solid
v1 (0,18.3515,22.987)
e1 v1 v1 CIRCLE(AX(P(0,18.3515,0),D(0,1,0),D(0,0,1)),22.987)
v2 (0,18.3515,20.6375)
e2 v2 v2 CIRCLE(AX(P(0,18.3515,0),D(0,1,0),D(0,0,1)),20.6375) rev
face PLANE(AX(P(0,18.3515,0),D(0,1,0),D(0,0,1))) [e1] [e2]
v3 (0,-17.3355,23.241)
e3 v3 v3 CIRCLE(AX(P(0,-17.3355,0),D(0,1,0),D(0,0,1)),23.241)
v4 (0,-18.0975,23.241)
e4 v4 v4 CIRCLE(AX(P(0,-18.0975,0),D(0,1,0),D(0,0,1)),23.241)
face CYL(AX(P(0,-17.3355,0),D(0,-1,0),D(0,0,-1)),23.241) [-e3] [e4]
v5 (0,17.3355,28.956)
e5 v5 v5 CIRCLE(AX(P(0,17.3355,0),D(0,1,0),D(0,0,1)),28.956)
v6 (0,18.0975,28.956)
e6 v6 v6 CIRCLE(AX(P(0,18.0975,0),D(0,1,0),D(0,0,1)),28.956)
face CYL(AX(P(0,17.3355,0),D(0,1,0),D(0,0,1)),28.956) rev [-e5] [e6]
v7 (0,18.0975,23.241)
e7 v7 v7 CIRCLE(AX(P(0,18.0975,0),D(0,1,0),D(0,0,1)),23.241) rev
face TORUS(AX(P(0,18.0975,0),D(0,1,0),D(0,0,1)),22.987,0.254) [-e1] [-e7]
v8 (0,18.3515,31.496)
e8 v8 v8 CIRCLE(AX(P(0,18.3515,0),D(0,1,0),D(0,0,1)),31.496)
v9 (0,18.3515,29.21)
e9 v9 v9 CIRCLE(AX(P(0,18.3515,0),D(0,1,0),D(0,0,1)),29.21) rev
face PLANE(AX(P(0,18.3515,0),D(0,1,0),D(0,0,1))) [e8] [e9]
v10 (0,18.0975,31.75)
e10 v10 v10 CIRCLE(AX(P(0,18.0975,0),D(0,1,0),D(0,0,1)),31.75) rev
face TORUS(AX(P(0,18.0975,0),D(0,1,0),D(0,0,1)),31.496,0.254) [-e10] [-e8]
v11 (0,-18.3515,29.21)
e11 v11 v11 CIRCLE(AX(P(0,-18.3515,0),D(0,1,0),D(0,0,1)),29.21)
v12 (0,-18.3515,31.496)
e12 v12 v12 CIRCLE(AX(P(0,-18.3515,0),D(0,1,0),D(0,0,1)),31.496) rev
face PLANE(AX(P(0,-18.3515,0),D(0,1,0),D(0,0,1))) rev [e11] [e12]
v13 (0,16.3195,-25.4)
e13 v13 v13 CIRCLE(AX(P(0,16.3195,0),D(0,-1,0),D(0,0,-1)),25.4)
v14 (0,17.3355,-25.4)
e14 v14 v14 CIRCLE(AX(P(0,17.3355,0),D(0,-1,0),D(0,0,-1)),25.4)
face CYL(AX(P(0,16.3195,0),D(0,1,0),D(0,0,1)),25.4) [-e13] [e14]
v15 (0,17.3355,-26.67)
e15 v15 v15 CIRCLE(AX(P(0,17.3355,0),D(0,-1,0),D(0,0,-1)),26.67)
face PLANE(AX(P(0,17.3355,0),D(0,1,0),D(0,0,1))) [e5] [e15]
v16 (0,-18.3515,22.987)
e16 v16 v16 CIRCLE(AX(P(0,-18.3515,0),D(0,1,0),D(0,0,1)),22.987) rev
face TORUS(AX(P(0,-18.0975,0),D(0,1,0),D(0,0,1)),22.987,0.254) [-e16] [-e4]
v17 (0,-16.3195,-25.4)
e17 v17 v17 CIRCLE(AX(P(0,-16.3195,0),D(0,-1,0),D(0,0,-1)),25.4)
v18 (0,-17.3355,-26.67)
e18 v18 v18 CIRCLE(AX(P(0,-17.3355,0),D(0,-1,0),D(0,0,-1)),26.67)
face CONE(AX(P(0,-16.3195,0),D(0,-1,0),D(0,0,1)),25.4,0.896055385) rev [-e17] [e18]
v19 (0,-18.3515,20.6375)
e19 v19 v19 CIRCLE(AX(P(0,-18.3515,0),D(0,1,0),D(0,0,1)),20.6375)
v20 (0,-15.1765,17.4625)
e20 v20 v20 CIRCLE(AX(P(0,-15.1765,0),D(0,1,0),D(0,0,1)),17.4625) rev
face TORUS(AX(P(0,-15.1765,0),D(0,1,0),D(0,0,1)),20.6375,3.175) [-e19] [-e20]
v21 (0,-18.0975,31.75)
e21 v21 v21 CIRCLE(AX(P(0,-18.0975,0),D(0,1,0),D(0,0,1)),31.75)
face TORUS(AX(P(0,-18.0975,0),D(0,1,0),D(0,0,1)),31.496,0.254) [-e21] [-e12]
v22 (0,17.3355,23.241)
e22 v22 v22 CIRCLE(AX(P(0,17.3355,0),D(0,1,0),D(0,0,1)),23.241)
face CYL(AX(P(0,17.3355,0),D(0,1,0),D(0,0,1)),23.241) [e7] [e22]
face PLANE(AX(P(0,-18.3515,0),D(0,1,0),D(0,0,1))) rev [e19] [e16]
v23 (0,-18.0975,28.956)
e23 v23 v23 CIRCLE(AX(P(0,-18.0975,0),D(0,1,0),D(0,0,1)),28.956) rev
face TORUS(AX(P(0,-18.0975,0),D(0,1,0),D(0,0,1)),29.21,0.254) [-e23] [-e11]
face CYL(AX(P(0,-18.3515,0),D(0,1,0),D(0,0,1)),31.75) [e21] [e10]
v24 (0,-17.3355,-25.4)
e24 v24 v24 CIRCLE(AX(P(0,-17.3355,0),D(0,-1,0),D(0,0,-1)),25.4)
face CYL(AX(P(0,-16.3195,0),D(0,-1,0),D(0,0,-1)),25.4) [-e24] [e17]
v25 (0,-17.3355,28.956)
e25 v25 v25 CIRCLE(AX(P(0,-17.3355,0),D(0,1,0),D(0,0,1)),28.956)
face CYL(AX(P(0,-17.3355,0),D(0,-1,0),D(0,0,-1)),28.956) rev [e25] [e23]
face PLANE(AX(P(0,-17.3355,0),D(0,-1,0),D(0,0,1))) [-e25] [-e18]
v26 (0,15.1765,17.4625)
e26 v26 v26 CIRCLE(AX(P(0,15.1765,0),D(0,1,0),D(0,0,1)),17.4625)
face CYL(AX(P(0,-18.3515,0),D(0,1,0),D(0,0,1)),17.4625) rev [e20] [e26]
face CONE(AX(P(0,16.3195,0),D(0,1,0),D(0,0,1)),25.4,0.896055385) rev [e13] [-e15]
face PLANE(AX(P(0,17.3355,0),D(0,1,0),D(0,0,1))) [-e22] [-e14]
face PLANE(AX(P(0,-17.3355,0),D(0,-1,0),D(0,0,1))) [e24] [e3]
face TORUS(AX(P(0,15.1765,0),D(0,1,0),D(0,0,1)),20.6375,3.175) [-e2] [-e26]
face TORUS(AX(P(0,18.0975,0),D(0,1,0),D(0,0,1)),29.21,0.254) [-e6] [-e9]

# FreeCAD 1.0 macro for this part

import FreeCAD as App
import Part
import Sketcher
from FreeCAD import Vector
Q = App.Units.Quantity


def edges_at(feature, points):
    """Names of the edges that pass closest to the given points."""
    edges = feature.Shape.Edges
    near = lambda p: min(range(len(edges)), key=lambda i: edges[i].distToShape(Part.Vertex(*p))[0])
    return sorted({f"Edge{near(p) + 1}" for p in points})

doc = App.newDocument("Part")
body = doc.addObject("PartDesign::Body", "Body")

sketch1 = body.newObject("Sketcher::SketchObject", "Sketch")
sketch1.AttachmentSupport = (doc.getObject("XZ_Plane"), [""])
sketch1.MapMode = "FlatFace"
sketch1.addGeometry(Part.Circle(Vector(0, 0, 0), Vector(0, 0, 1), 32), False)
sketch1.addGeometry(Part.Circle(Vector(0, 0, 0), Vector(0, 0, 1), 17), False)
sketch1.addConstraint(Sketcher.Constraint("Coincident", 0, 3, -1, 1))
sketch1.addConstraint(Sketcher.Constraint("Coincident", 1, 3, -1, 1))
sketch1.addConstraint(Sketcher.Constraint("Diameter", 0, Q("2.5 in")))
sketch1.addConstraint(Sketcher.Constraint("Diameter", 1, Q("1.375 in")))
pad1 = body.newObject("PartDesign::Pad", "Pad")
pad1.Profile = sketch1
pad1.Type = "TwoLengths"
pad1.Length = Q("0.7225 in")
pad1.Length2 = Q("0.7225 in")
pad1.Reversed = True

sketch2 = body.newObject("Sketcher::SketchObject", "Sketch001")
sketch2.AttachmentSupport = (doc.getObject("XZ_Plane"), [""])
sketch2.MapMode = "FlatFace"
sketch2.AttachmentOffset = App.Placement(Vector(0, 0, -0.7225 * 25.4), App.Rotation())
sketch2.addGeometry(Part.Circle(Vector(0, 0, 0), Vector(0, 0, 1), 29), False)
sketch2.addGeometry(Part.Circle(Vector(0, 0, 0), Vector(0, 0, 1), 23), False)
sketch2.addConstraint(Sketcher.Constraint("Coincident", 0, 3, -1, 1))
sketch2.addConstraint(Sketcher.Constraint("Coincident", 1, 3, -1, 1))
sketch2.addConstraint(Sketcher.Constraint("Diameter", 0, Q("2.28 in")))
sketch2.addConstraint(Sketcher.Constraint("Diameter", 1, Q("1.83 in")))
pocket1 = body.newObject("PartDesign::Pocket", "Pocket")
pocket1.Profile = sketch2
pocket1.Length = Q("0.04 in")
pocket1.Reversed = True
doc.recompute()

mirrored = body.newObject("PartDesign::Mirrored", "Mirrored")
mirrored.Originals = [pocket1]
mirrored.MirrorPlane = (doc.getObject("XZ_Plane"), [""])
body.Tip = mirrored

sketch3 = body.newObject("Sketcher::SketchObject", "Sketch002")
sketch3.AttachmentSupport = (doc.getObject("XZ_Plane"), [""])
sketch3.MapMode = "FlatFace"
sketch3.AttachmentOffset = App.Placement(Vector(0, 0, 0.6825 * 25.4), App.Rotation())
sketch3.addGeometry(Part.Circle(Vector(0, 0, 0), Vector(0, 0, 1), 27), False)
sketch3.addGeometry(Part.Circle(Vector(0, 0, 0), Vector(0, 0, 1), 25), False)
sketch3.addConstraint(Sketcher.Constraint("Coincident", 0, 3, -1, 1))
sketch3.addConstraint(Sketcher.Constraint("Coincident", 1, 3, -1, 1))
sketch3.addConstraint(Sketcher.Constraint("Diameter", 1, Q("2 in")))
sketch3.addConstraint(Sketcher.Constraint("Diameter", 0, Q("2.1 in")))
pocket2 = body.newObject("PartDesign::Pocket", "Pocket001")
pocket2.Profile = sketch3
pocket2.Length = Q("0.04 in")
doc.recompute()

fillet = body.newObject("PartDesign::Fillet", "Fillet")
fillet.Base = (pocket2, edges_at(pocket2, [(0, -18.352, -17.462), (0, 18.352, -17.462)]))
fillet.Radius = Q("0.125 in")
doc.recompute()

mirrored2 = body.newObject("PartDesign::Mirrored", "Mirrored001")
mirrored2.Originals = [pocket2]
mirrored2.MirrorPlane = (doc.getObject("XZ_Plane"), [""])
body.Tip = mirrored2

sketch4 = body.newObject("Sketcher::SketchObject", "Sketch003")
sketch4.AttachmentSupport = (doc.getObject("YZ_Plane"), [""])
sketch4.MapMode = "FlatFace"
sketch4.addGeometry(Part.LineSegment(Vector(16.3, 25.4, 0), Vector(17.3, 26.7, 0)), False)
sketch4.addGeometry(Part.LineSegment(Vector(17.3, 26.7, 0), Vector(16.3, 26.7, 0)), False)
sketch4.addGeometry(Part.LineSegment(Vector(16.3, 26.7, 0), Vector(16.3, 25.4, 0)), False)
sketch4.addConstraint(Sketcher.Constraint("Coincident", 0, 2, 1, 1))
sketch4.addConstraint(Sketcher.Constraint("Coincident", 1, 2, 2, 1))
sketch4.addConstraint(Sketcher.Constraint("Coincident", 2, 2, 0, 1))
sketch4.addConstraint(Sketcher.Constraint("Horizontal", 1))
sketch4.addConstraint(Sketcher.Constraint("Vertical", 2))
sketch4.addConstraint(Sketcher.Constraint("DistanceY", -1, 1, 2, 2, Q("1 in")))
sketch4.addConstraint(Sketcher.Constraint("DistanceX", 1, 2, 1, 1, Q("0.04 in")))
sketch4.addConstraint(Sketcher.Constraint("DistanceY", 2, 2, 2, 1, Q("0.05 in")))
sketch4.addConstraint(Sketcher.Constraint("DistanceX", -1, 1, 0, 2, Q("0.6825 in")))
revolution = body.newObject("PartDesign::Revolution", "Revolution")
revolution.Profile = sketch4
revolution.ReferenceAxis = (sketch4, ["H_Axis"])
revolution.Angle = 360
doc.recompute()

mirrored3 = body.newObject("PartDesign::Mirrored", "Mirrored002")
mirrored3.Originals = [revolution]
mirrored3.MirrorPlane = (doc.getObject("XZ_Plane"), [""])
body.Tip = mirrored3
doc.recompute()

fillet2 = body.newObject("PartDesign::Fillet", "Fillet001")
fillet2.Base = (mirrored3, edges_at(mirrored3, [
    (0, 18.352, -28.956),
    (0, 18.352, -23.241),
    (0, -18.352, -23.241),
    (0, -18.352, -28.956),
    (0, -18.352, -31.75),
    (0, 18.352, -31.75),
]))
fillet2.Radius = Q("0.01 in")

doc.recompute()
